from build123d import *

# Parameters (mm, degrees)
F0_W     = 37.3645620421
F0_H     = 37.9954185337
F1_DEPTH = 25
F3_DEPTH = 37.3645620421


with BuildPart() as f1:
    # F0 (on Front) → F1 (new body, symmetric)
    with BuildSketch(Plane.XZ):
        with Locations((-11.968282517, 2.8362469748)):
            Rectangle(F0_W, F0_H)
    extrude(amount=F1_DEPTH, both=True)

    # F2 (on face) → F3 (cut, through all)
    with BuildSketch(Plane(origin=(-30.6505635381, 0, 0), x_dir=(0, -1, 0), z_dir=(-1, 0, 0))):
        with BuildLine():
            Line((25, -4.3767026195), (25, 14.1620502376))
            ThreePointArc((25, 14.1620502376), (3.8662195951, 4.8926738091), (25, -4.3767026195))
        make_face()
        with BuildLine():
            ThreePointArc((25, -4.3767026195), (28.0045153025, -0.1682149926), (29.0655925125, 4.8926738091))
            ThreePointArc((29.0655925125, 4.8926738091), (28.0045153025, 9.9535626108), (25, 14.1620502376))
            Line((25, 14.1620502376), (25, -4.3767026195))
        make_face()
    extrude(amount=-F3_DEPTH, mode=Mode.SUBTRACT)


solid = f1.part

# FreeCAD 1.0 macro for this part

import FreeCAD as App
import Part
import Sketcher
from FreeCAD import Vector
Q = App.Units.Quantity

doc = App.newDocument("Part")
params = doc.addObject("Spreadsheet::Sheet", "Params")
for row, (alias, value) in enumerate([
    ("pad1_length", "50 mm"),
], start=1):
    params.set(f"A{row}", alias)
    params.set(f"B{row}", "=" + value)
    params.setAlias(f"B{row}", alias)

body = doc.addObject("PartDesign::Body", "Body")

sketch1 = body.newObject("Sketcher::SketchObject", "Sketch")
sketch1.AttachmentSupport = (doc.getObject("XZ_Plane"), [""])
sketch1.MapMode = "FlatFace"
sketch1.addGeometry([
    Part.LineSegment(Vector(-31, 22, 0), Vector(-31, -16, 0)),
    Part.LineSegment(Vector(-31, -16, 0), Vector(7, -16, 0)),
    Part.LineSegment(Vector(7, -16, 0), Vector(7, 22, 0)),
    Part.LineSegment(Vector(7, 22, 0), Vector(-31, 22, 0)),
], False)
sketch1.addConstraint([
    Sketcher.Constraint("Coincident", 0, 2, 1, 1),
    Sketcher.Constraint("Coincident", 1, 2, 2, 1),
    Sketcher.Constraint("Coincident", 2, 2, 3, 1),
    Sketcher.Constraint("Coincident", 3, 2, 0, 1),
    Sketcher.Constraint("Vertical", 0),
    Sketcher.Constraint("Horizontal", 1),
    Sketcher.Constraint("Vertical", 2),
    Sketcher.Constraint("Horizontal", 3),
    Sketcher.Constraint("DistanceX", -1, 1, 1, 2, Q("6.713999 mm")),
    Sketcher.Constraint("DistanceY", 0, 2, 0, 1, Q("37.995419 mm")),
    Sketcher.Constraint("DistanceX", 1, 1, 1, 2, Q("37.364562 mm")),
    Sketcher.Constraint("DistanceY", 0, 2, -1, 1, Q("16.161462 mm")),
])
pad1 = body.newObject("PartDesign::Pad", "Pad")
pad1.Profile = sketch1
pad1.setExpression("Length", "Params.pad1_length")
pad1.Midplane = True

sketch2 = body.newObject("Sketcher::SketchObject", "Sketch001")
sketch2.AttachmentSupport = (doc.getObject("YZ_Plane"), [""])
sketch2.MapMode = "FlatFace"
sketch2.AttachmentOffset = App.Placement(Vector(0, 0, -30.650564), App.Rotation())
sketch2.addGeometry(Part.Circle(Vector(-16, 5, 0), Vector(0, 0, 1), 13), False)
sketch2.addConstraint([
    Sketcher.Constraint("Diameter", 0, Q("25.199373 mm")),
    Sketcher.Constraint("DistanceX", 0, 3, -1, 1, Q("16.465906 mm")),
    Sketcher.Constraint("DistanceY", -1, 1, 0, 3, Q("4.892674 mm")),
])
pocket1 = body.newObject("PartDesign::Pocket", "Pocket")
pocket1.Profile = sketch2
pocket1.Type = "ThroughAll"
pocket1.Reversed = True

doc.recompute()
